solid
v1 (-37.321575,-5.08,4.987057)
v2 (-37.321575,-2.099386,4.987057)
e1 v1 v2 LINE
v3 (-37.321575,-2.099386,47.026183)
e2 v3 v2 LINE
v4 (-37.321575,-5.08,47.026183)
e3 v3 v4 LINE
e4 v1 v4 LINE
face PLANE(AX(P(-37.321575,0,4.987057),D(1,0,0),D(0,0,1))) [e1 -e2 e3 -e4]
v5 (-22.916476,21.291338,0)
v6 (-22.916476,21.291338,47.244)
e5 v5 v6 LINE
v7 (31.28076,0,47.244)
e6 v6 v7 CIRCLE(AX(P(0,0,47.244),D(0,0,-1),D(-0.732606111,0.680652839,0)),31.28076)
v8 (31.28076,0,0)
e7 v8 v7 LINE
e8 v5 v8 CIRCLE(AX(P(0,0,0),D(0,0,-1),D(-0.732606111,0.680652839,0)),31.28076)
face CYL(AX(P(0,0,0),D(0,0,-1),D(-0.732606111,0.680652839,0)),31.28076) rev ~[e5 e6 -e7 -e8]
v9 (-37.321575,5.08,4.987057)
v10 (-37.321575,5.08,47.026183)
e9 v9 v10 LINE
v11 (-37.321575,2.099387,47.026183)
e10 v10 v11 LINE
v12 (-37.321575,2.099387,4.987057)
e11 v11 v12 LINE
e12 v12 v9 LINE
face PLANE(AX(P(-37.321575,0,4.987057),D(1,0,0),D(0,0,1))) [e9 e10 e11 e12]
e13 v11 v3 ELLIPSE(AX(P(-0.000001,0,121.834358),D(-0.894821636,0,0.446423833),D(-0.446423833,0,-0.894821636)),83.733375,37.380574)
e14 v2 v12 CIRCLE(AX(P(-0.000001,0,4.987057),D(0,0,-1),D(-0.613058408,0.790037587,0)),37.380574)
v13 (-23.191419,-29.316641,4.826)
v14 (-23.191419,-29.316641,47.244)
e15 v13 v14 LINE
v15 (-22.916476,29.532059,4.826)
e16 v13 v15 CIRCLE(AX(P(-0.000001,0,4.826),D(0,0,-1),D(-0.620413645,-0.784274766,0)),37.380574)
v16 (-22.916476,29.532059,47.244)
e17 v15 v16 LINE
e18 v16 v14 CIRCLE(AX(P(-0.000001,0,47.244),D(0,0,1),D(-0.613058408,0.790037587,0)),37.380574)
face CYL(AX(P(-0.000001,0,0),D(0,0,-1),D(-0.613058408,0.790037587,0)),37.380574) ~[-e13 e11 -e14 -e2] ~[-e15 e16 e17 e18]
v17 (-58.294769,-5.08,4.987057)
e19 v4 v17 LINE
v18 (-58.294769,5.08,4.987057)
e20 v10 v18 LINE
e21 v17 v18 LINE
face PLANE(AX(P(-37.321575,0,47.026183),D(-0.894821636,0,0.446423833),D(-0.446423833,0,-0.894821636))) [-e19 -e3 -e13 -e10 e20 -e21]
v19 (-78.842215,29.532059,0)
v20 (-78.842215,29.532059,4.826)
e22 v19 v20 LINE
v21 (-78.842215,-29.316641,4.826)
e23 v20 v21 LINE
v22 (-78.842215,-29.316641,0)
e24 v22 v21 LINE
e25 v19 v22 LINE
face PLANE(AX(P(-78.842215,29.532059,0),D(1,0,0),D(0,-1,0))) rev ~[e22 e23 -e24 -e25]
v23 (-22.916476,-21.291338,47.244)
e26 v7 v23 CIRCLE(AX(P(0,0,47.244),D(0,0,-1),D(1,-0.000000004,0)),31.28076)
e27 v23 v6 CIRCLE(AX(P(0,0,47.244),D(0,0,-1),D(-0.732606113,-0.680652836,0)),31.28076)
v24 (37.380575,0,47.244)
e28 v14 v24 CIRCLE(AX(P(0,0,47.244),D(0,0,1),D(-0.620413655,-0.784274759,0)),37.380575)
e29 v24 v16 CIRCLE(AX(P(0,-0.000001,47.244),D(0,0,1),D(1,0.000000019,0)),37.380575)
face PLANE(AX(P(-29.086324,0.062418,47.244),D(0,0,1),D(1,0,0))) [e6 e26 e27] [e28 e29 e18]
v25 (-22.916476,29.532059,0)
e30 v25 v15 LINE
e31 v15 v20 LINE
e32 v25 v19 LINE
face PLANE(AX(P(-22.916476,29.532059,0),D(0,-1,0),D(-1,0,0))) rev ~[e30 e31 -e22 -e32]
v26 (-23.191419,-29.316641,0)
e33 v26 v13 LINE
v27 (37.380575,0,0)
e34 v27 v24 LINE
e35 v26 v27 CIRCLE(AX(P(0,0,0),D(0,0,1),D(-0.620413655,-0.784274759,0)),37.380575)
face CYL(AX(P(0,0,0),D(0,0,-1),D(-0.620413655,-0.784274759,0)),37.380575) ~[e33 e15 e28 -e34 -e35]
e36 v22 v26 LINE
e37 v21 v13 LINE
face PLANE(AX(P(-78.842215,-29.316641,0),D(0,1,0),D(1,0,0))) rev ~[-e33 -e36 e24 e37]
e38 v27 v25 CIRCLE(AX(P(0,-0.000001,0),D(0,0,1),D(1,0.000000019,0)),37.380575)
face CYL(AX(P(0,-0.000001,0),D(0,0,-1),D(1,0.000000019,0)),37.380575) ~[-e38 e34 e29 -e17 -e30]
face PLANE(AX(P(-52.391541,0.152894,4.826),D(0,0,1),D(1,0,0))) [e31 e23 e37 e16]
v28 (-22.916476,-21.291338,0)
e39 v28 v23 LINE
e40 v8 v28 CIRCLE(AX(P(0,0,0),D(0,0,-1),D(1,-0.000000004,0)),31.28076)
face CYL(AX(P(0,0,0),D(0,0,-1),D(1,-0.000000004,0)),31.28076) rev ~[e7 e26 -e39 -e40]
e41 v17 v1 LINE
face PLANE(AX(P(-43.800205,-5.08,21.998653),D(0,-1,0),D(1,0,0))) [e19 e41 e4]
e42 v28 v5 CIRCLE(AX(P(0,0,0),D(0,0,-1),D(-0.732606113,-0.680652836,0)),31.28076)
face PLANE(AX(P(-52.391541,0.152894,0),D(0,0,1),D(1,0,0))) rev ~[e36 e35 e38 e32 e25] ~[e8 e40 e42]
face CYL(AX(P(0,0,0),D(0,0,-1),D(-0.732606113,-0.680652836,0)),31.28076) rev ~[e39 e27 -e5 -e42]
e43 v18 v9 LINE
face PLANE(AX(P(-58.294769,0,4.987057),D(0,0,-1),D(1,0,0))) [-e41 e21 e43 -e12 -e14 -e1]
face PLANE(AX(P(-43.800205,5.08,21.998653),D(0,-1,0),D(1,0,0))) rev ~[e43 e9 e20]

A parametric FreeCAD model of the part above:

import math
import FreeCAD as App
import Part
import Sketcher
Q = App.Units.Quantity


def add_polygon(sketch, points):
    """Adds a closed chain of lines whose ends are joined by coincident constraints."""
    first, n = sketch.GeometryCount, len(points)
    for a, b in zip(points, points[1:] + points[:1]):
        sketch.addGeometry(Part.LineSegment(App.Vector(*a, 0), App.Vector(*b, 0)), False)
    for i in range(n):
        sketch.addConstraint(Sketcher.Constraint("Coincident", first + i, 2, first + (i + 1) % n, 1))

doc = App.newDocument("Part")
body = doc.addObject("PartDesign::Body", "Body")

# Sketch on XY plane
sketch1 = body.newObject("Sketcher::SketchObject", "Sketch")
sketch1.AttachmentSupport = (doc.getObject("XY_Plane"), [""])
sketch1.MapMode = "FlatFace"
sketch1.addGeometry(Part.ArcOfCircle(Part.Circle(App.Vector(-0.000001, 0, 0), App.Vector(0, 0, 1), 37.380574), math.radians(127.810976), math.radians(231.653653)), False)
sketch1.addGeometry(Part.ArcOfCircle(Part.Circle(App.Vector(0, 0, 0), App.Vector(0, 0, 1), 37.380575), math.radians(-128.346348), math.radians(-0.000001)), False)
sketch1.addGeometry(Part.ArcOfCircle(Part.Circle(App.Vector(0, -0.000001, 0), App.Vector(0, 0, 1), 37.380575), math.radians(0.000001), math.radians(127.810975)), False)
sketch1.addGeometry(Part.ArcOfCircle(Part.Circle(App.Vector(0, 0, 0), App.Vector(0, 0, 1), 31.28076), math.radians(137.105321), math.radians(222.894679)), False)
sketch1.addGeometry(Part.ArcOfCircle(Part.Circle(App.Vector(0, 0, 0), App.Vector(0, 0, 1), 31.28076), math.radians(0), math.radians(137.105321)), False)
sketch1.addGeometry(Part.ArcOfCircle(Part.Circle(App.Vector(0, 0, 0), App.Vector(0, 0, 1), 31.28076), math.radians(-137.105321), math.radians(0)), False)
sketch1.addConstraint(Sketcher.Constraint("Tangent", 0, 2, 1, 1))
sketch1.addConstraint(Sketcher.Constraint("Tangent", 1, 2, 2, 1))
sketch1.addConstraint(Sketcher.Constraint("Tangent", 2, 2, 0, 1))
sketch1.addConstraint(Sketcher.Constraint("Tangent", 3, 1, 4, 2))
sketch1.addConstraint(Sketcher.Constraint("Tangent", 4, 1, 5, 2))
sketch1.addConstraint(Sketcher.Constraint("Tangent", 5, 1, 3, 2))
sketch1.addConstraint(Sketcher.Constraint("Coincident", 0, 3, -1, 1))
sketch1.addConstraint(Sketcher.Constraint("Coincident", 3, 3, -1, 1))
sketch1.addConstraint(Sketcher.Constraint("PointOnObject", 1, 2, -1))
sketch1.addConstraint(Sketcher.Constraint("PointOnObject", 4, 1, -1))
sketch1.addConstraint(Sketcher.Constraint("Vertical", 2, 2, 3, 1))
sketch1.addConstraint(Sketcher.Constraint("Vertical", 3, 1, 5, 1))
sketch1.addConstraint(Sketcher.Constraint("Radius", 3, 31.28076))
sketch1.addConstraint(Sketcher.Constraint("Radius", 0, 37.380574))
sketch1.addConstraint(Sketcher.Constraint("DistanceX", 0, 2, -1, 1, 23.191419))
sketch1.addConstraint(Sketcher.Constraint("DistanceY", -1, 1, 2, 2, 29.532059))
pad1 = body.newObject("PartDesign::Pad", "Pad")
pad1.Profile = sketch1
pad1.Length = Q("1.86 in")

# Sketch on XY plane
sketch2 = body.newObject("Sketcher::SketchObject", "Sketch001")
sketch2.AttachmentSupport = (doc.getObject("XY_Plane"), [""])
sketch2.MapMode = "FlatFace"
sketch2.addGeometry(Part.ArcOfCircle(Part.Circle(App.Vector(-0.000001, 0, 0), App.Vector(0, 0, 1), 37.380574), math.radians(127.810976), math.radians(231.653653)), False)
sketch2.addGeometry(Part.LineSegment(App.Vector(-22.916476, 29.532059, 0), App.Vector(-78.842215, 29.532059, 0)), False)
sketch2.addGeometry(Part.LineSegment(App.Vector(-78.842215, 29.532059, 0), App.Vector(-78.842215, -29.316641, 0)), False)
sketch2.addGeometry(Part.LineSegment(App.Vector(-78.842215, -29.316641, 0), App.Vector(-23.191419, -29.316641, 0)), False)
sketch2.addConstraint(Sketcher.Constraint("Coincident", 0, 1, 1, 1))
sketch2.addConstraint(Sketcher.Constraint("Coincident", 1, 2, 2, 1))
sketch2.addConstraint(Sketcher.Constraint("Coincident", 2, 2, 3, 1))
sketch2.addConstraint(Sketcher.Constraint("Coincident", 3, 2, 0, 2))
sketch2.addConstraint(Sketcher.Constraint("Horizontal", 1))
sketch2.addConstraint(Sketcher.Constraint("Vertical", 2))
sketch2.addConstraint(Sketcher.Constraint("Horizontal", 3))
sketch2.addConstraint(Sketcher.Constraint("Coincident", 0, 3, -1, 1))
sketch2.addConstraint(Sketcher.Constraint("DistanceY", 2, 2, 2, 1, 58.8487))
sketch2.addConstraint(Sketcher.Constraint("Radius", 0, 37.380574))
sketch2.addConstraint(Sketcher.Constraint("DistanceX", 1, 2, 1, 1, 55.925739))
sketch2.addConstraint(Sketcher.Constraint("DistanceX", 3, 1, 3, 2, 55.650796))
pad2 = body.newObject("PartDesign::Pad", "Pad001")
pad2.Profile = sketch2
pad2.Length = Q("0.19 in")

# Sketch on XZ plane
sketch3 = body.newObject("Sketcher::SketchObject", "Sketch002")
sketch3.AttachmentSupport = (doc.getObject("XZ_Plane"), [""])
sketch3.MapMode = "FlatFace"
add_polygon(sketch3, [(-37.321575, 4.987057), (-37.321575, 47.026183), (-58.294769, 4.987057)])  # lines 0-2
sketch3.addConstraint(Sketcher.Constraint("Vertical", 0))
sketch3.addConstraint(Sketcher.Constraint("Horizontal", 2))
sketch3.addConstraint(Sketcher.Constraint("DistanceX", 2, 1, 2, 2, 20.973194))
sketch3.addConstraint(Sketcher.Constraint("DistanceY", 0, 1, 0, 2, 42.039126))
sketch3.addConstraint(Sketcher.Constraint("DistanceX", 1, 2, -1, 1, 58.294769))
sketch3.addConstraint(Sketcher.Constraint("DistanceY", -1, 1, 0, 2, 47.026183))
pad3 = body.newObject("PartDesign::Pad", "Pad002")
pad3.Profile = sketch3
pad3.Length = Q("0.4 in")
pad3.Midplane = True

doc.recompute()
